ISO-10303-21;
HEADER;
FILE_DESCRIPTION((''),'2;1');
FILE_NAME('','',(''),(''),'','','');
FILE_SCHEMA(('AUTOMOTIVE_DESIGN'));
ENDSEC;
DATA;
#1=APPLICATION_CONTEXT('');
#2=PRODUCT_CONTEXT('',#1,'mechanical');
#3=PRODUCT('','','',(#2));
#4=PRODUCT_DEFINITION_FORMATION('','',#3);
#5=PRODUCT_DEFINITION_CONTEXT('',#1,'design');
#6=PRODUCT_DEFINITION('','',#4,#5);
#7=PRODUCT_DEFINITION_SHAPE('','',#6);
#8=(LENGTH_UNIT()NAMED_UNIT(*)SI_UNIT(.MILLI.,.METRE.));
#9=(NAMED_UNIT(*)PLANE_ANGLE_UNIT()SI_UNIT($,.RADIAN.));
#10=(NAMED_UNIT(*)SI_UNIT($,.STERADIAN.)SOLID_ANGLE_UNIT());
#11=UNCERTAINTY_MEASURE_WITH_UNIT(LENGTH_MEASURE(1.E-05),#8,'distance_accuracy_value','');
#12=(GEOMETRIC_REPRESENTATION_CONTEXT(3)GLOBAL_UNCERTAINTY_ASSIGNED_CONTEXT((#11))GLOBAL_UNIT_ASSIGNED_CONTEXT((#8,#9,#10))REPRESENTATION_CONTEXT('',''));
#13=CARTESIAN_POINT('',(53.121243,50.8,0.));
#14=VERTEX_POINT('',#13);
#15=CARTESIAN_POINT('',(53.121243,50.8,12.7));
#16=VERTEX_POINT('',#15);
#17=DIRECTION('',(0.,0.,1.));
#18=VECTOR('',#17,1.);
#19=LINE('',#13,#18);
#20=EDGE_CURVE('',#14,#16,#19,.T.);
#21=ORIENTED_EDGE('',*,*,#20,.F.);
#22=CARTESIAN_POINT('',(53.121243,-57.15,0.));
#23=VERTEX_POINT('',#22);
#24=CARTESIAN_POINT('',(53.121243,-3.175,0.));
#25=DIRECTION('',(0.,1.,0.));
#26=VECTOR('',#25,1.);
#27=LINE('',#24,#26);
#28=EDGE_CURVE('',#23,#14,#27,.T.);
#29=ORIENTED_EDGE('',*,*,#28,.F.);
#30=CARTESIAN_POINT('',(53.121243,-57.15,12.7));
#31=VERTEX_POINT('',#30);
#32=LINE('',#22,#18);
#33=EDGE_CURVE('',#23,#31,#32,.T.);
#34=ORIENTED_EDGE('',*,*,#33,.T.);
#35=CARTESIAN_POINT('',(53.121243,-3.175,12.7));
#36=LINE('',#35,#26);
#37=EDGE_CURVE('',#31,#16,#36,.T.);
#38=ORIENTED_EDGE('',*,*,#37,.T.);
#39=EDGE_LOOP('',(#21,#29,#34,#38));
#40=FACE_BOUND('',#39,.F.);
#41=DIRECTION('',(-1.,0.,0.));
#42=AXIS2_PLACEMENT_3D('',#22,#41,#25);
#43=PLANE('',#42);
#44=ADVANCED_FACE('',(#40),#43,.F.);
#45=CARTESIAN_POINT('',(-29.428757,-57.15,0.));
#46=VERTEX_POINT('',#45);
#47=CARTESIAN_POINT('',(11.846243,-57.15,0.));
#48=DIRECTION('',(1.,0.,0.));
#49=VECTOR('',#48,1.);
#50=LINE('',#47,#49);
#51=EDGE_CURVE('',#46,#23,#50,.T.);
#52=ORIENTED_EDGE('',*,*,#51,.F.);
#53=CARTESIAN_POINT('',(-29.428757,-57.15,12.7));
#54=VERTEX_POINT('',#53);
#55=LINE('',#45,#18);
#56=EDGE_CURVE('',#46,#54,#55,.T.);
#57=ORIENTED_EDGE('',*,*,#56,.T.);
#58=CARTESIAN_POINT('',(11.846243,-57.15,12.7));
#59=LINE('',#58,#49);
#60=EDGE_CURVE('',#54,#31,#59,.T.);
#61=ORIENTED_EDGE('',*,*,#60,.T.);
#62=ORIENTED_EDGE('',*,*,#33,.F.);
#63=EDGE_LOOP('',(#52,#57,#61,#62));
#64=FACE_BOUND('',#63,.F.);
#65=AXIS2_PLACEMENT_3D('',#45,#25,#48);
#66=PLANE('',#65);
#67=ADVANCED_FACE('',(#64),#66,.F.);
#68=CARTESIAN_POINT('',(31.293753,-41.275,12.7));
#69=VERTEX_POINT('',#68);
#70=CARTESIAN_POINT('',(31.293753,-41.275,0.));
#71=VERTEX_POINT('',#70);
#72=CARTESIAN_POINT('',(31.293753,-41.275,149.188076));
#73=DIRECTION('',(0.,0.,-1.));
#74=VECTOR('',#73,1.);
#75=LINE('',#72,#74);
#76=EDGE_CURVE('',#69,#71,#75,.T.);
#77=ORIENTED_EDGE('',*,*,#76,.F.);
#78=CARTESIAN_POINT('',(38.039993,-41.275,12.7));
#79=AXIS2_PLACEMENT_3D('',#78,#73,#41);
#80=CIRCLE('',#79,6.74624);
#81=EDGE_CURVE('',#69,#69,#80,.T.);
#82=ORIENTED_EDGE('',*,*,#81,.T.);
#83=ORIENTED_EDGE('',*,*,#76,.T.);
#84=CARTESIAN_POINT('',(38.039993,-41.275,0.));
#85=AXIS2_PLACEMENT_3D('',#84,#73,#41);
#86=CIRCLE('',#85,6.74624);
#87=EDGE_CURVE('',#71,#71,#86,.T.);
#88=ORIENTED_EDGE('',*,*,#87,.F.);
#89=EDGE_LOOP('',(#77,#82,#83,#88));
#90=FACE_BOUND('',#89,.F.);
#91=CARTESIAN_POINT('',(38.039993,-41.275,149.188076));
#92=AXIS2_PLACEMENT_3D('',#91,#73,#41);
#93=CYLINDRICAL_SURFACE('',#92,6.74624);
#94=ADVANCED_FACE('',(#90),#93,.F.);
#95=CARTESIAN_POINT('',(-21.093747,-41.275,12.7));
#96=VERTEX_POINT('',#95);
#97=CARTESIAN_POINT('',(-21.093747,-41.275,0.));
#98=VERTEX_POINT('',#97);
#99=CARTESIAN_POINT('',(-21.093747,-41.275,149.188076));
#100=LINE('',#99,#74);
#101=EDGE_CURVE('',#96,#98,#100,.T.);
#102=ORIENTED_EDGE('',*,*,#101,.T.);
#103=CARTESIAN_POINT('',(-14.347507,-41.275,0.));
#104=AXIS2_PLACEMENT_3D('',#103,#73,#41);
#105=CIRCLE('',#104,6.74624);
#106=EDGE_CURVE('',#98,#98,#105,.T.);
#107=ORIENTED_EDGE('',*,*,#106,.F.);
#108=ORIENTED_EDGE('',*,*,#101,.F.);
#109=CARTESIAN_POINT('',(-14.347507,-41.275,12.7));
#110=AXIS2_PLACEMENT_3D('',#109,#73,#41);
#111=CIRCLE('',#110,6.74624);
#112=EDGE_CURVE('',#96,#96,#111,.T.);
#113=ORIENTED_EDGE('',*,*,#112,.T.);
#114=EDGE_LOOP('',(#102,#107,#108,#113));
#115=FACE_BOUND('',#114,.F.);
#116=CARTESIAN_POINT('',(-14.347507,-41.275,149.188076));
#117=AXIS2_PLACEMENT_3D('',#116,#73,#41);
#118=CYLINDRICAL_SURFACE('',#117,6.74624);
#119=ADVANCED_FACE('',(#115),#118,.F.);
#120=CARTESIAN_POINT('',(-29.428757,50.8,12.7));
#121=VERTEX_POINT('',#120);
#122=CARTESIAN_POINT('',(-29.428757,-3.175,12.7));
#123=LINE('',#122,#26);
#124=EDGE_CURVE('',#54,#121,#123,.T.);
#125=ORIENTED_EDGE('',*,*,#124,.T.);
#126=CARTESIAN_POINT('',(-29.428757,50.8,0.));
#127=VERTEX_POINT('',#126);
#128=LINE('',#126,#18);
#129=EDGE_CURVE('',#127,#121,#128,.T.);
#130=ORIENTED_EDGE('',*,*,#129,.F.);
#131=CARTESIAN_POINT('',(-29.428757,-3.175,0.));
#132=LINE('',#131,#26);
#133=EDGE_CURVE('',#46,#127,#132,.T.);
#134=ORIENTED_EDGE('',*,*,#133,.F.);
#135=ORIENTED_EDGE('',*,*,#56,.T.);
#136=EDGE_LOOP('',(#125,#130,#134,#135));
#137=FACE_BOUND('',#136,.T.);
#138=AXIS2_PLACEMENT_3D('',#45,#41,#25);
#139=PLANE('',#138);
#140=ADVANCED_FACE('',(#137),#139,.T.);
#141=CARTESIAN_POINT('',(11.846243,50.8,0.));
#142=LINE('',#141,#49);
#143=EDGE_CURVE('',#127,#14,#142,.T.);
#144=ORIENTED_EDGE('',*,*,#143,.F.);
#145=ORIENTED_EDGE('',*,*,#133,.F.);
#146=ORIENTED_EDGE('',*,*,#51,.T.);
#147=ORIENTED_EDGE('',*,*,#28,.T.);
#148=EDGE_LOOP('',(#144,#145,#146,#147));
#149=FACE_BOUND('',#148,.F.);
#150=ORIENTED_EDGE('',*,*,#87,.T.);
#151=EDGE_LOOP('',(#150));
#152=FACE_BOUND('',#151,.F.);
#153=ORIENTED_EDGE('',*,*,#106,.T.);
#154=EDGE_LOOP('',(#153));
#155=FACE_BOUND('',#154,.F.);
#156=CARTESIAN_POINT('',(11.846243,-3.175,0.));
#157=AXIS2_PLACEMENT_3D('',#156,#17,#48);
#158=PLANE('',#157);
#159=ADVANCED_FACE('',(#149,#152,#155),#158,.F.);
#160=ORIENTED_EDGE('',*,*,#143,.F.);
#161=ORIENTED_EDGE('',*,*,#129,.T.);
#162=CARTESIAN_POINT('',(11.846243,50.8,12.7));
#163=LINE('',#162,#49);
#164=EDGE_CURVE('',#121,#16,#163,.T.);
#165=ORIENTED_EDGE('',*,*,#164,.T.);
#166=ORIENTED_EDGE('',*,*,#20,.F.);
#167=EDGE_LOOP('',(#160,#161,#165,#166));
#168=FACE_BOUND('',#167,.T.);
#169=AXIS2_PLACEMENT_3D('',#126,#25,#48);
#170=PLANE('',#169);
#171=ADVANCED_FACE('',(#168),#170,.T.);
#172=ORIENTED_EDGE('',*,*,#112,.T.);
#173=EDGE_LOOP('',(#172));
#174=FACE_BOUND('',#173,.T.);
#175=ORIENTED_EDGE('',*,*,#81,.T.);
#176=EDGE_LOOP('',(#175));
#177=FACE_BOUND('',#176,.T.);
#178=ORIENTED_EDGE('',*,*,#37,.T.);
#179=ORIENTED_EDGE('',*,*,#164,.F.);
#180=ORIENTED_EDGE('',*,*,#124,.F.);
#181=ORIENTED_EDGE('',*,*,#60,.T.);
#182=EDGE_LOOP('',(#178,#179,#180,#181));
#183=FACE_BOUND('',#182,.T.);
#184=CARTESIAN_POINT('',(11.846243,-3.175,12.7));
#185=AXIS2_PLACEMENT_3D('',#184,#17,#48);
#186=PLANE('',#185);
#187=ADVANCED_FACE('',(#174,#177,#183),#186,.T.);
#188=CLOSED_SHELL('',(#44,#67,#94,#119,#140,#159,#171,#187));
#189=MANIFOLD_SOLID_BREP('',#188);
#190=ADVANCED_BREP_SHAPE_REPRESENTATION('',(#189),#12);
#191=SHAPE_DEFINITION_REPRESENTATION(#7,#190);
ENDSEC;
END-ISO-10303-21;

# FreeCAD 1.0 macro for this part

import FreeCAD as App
import Part
import Sketcher
from FreeCAD import Vector
Q = App.Units.Quantity

doc = App.newDocument("Part")
body = doc.addObject("PartDesign::Body", "Body")

# Sketch on XY plane
sketch1 = body.newObject("Sketcher::SketchObject", "Sketch")
sketch1.AttachmentSupport = (doc.getObject("XY_Plane"), [""])
sketch1.MapMode = "FlatFace"
sketch1.addGeometry([
    Part.LineSegment(Vector(-29, 51, 0), Vector(-29, -57, 0)),
    Part.LineSegment(Vector(-29, -57, 0), Vector(53, -57, 0)),
    Part.LineSegment(Vector(53, -57, 0), Vector(53, 51, 0)),
    Part.LineSegment(Vector(53, 51, 0), Vector(-29, 51, 0)),
], False)
sketch1.addConstraint([
    Sketcher.Constraint("Coincident", 0, 2, 1, 1),
    Sketcher.Constraint("Coincident", 1, 2, 2, 1),
    Sketcher.Constraint("Coincident", 2, 2, 3, 1),
    Sketcher.Constraint("Coincident", 3, 2, 0, 1),
    Sketcher.Constraint("Vertical", 0),
    Sketcher.Constraint("Horizontal", 1),
    Sketcher.Constraint("Vertical", 2),
    Sketcher.Constraint("Horizontal", 3),
    Sketcher.Constraint("DistanceY", -1, 1, 2, 2, Q("2 in")),
    Sketcher.Constraint("DistanceX", 1, 1, 1, 2, Q("3.25 in")),
    Sketcher.Constraint("DistanceY", 0, 2, 0, 1, Q("4.25 in")),
    Sketcher.Constraint("DistanceX", 0, 2, -1, 1, 29.428757),
])
pad1 = body.newObject("PartDesign::Pad", "Pad")
pad1.Profile = sketch1
pad1.Length = Q("0.5 in")

# Sketch on XY plane
sketch2 = body.newObject("Sketcher::SketchObject", "Sketch001")
sketch2.AttachmentSupport = (doc.getObject("XY_Plane"), [""])
sketch2.MapMode = "FlatFace"
sketch2.AttachmentOffset = App.Placement(Vector(0, 0, 0.5 * 25.4), App.Rotation())
sketch2.addGeometry([
    Part.Circle(Vector(-14, -41, 0), Vector(0, 0, 1), 7),
    Part.Circle(Vector(38, -41, 0), Vector(0, 0, 1), 7),
], False)
sketch2.addConstraint([
    Sketcher.Constraint("Equal", 0, 1),
    Sketcher.Constraint("Horizontal", 0, 3, 1, 3),
    Sketcher.Constraint("Diameter", 0, Q("0.5312 in")),
    Sketcher.Constraint("DistanceY", 0, 3, -1, 1, Q("1.625 in")),
    Sketcher.Constraint("DistanceX", 0, 3, 1, 3, Q("2.0625 in")),
    Sketcher.Constraint("DistanceX", 0, 3, -1, 1, 14.347507),
])
doc.recompute()
hole = body.newObject("PartDesign::Hole", "Hole")
hole.Profile = sketch2
hole.ThreadType = "None"
hole.Diameter = Q("0.5312 in")
hole.DepthType = "ThroughAll"

doc.recompute()
